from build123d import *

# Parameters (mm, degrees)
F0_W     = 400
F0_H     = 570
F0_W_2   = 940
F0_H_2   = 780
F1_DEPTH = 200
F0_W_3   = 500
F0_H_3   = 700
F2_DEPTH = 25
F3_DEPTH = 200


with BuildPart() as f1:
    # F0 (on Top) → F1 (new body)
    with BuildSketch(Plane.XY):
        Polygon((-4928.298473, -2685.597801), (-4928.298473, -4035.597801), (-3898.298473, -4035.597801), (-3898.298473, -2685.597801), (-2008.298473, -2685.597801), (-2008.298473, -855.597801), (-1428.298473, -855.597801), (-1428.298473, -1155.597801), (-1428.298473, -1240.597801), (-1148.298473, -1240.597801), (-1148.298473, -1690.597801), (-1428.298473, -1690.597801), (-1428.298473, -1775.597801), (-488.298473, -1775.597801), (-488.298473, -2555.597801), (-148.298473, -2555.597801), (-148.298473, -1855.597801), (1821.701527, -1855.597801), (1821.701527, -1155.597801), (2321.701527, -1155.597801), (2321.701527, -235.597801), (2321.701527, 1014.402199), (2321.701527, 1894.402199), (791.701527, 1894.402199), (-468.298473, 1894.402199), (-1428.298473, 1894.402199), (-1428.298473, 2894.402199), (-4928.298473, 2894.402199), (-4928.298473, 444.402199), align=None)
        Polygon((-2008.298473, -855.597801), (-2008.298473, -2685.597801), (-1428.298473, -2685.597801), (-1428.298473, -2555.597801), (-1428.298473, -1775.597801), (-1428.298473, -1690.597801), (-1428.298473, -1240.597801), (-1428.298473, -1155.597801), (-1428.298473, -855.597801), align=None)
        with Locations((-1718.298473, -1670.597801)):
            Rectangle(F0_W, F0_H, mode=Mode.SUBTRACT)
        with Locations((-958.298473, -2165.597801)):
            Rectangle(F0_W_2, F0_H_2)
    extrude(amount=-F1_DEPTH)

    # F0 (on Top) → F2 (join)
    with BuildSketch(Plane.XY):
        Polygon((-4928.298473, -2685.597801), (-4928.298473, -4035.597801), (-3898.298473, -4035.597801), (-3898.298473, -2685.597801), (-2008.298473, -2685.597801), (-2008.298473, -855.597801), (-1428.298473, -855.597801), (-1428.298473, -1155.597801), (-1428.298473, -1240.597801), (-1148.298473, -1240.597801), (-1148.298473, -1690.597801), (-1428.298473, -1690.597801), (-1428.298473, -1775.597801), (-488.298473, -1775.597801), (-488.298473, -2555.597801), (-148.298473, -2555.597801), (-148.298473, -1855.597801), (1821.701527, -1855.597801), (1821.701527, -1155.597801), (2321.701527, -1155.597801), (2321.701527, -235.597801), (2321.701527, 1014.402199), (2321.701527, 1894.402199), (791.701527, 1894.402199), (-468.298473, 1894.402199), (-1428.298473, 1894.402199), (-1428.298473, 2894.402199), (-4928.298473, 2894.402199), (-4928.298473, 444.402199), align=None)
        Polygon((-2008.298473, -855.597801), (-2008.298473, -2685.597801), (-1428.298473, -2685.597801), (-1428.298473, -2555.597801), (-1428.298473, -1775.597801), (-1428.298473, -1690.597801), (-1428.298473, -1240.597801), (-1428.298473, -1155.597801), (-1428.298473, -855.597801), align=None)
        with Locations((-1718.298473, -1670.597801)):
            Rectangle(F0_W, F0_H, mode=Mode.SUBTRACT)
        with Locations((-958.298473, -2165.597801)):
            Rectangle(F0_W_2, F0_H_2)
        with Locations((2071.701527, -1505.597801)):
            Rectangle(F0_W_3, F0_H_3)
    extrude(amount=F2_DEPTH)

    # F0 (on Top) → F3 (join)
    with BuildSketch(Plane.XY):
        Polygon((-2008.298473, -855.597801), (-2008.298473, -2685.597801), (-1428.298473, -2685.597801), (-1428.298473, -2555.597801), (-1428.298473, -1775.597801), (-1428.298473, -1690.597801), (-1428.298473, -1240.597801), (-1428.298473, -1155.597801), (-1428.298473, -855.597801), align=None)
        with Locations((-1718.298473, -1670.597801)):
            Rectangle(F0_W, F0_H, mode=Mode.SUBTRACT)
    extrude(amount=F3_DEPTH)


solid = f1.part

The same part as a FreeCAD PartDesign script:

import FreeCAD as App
import Part
import Sketcher
from FreeCAD import Vector
Q = App.Units.Quantity


def add_polygon(sketch, points):
    """Adds a closed chain of lines whose ends are joined by coincident constraints."""
    first, n = sketch.GeometryCount, len(points)
    for a, b in zip(points, points[1:] + points[:1]):
        sketch.addGeometry(Part.LineSegment(App.Vector(*a, 0), App.Vector(*b, 0)), False)
    for i in range(n):
        sketch.addConstraint(Sketcher.Constraint("Coincident", first + i, 2, first + (i + 1) % n, 1))

doc = App.newDocument("Part")
body = doc.addObject("PartDesign::Body", "Body")

# Sketch on XY plane
sketch1 = body.newObject("Sketcher::SketchObject", "Sketch")
sketch1.AttachmentSupport = (doc.getObject("XY_Plane"), [""])
sketch1.MapMode = "FlatFace"
add_polygon(sketch1, [(-4928, -4036), (-3898, -4036), (-3898, -2686), (-1428, -2686), (-1428, -2556), (-148, -2556), (-148, -1856), (1822, -1856), (1822, -1156), (2322, -1156), (2322, 1894), (-1428, 1894), (-1428, 2894), (-4928, 2894)])  # lines 0-13
add_polygon(sketch1, [(-1518, -1956), (-1918, -1956), (-1918, -1386), (-1518, -1386)])  # lines 14-17
add_polygon(sketch1, [(-1428, -1241), (-1148, -1241), (-1148, -1691), (-1428, -1691)])  # lines 18-21
sketch1.addConstraint(Sketcher.Constraint("Horizontal", 0))
sketch1.addConstraint(Sketcher.Constraint("Vertical", 1))
sketch1.addConstraint(Sketcher.Constraint("Horizontal", 2))
sketch1.addConstraint(Sketcher.Constraint("Vertical", 3))
sketch1.addConstraint(Sketcher.Constraint("Horizontal", 4))
sketch1.addConstraint(Sketcher.Constraint("Vertical", 5))
sketch1.addConstraint(Sketcher.Constraint("Horizontal", 6))
sketch1.addConstraint(Sketcher.Constraint("Vertical", 7))
sketch1.addConstraint(Sketcher.Constraint("Horizontal", 8))
sketch1.addConstraint(Sketcher.Constraint("Vertical", 9))
sketch1.addConstraint(Sketcher.Constraint("Horizontal", 10))
sketch1.addConstraint(Sketcher.Constraint("Vertical", 11))
sketch1.addConstraint(Sketcher.Constraint("Horizontal", 12))
sketch1.addConstraint(Sketcher.Constraint("Vertical", 13))
sketch1.addConstraint(Sketcher.Constraint("Horizontal", 14))
sketch1.addConstraint(Sketcher.Constraint("Vertical", 15))
sketch1.addConstraint(Sketcher.Constraint("Horizontal", 16))
sketch1.addConstraint(Sketcher.Constraint("Vertical", 17))
sketch1.addConstraint(Sketcher.Constraint("Horizontal", 18))
sketch1.addConstraint(Sketcher.Constraint("Vertical", 19))
sketch1.addConstraint(Sketcher.Constraint("Horizontal", 20))
sketch1.addConstraint(Sketcher.Constraint("Vertical", 21))
sketch1.addConstraint(Sketcher.Constraint("Vertical", 3, 2, 10, 2))
sketch1.addConstraint(Sketcher.Constraint("Vertical", 11, 2, 20, 2))
sketch1.addConstraint(Sketcher.Constraint("Equal", 5, 7))
sketch1.addConstraint(Sketcher.Constraint("DistanceX", 0, 1, 0, 2, Q("1030 mm")))
sketch1.addConstraint(Sketcher.Constraint("DistanceX", 2, 1, 2, 2, Q("2470 mm")))
sketch1.addConstraint(Sketcher.Constraint("DistanceX", 4, 1, 4, 2, Q("1280 mm")))
sketch1.addConstraint(Sketcher.Constraint("DistanceX", 6, 1, 6, 2, Q("1970 mm")))
sketch1.addConstraint(Sketcher.Constraint("DistanceX", 8, 1, 8, 2, Q("500 mm")))
sketch1.addConstraint(Sketcher.Constraint("DistanceX", 14, 2, 14, 1, Q("400 mm")))
sketch1.addConstraint(Sketcher.Constraint("DistanceX", 18, 1, 18, 2, Q("280 mm")))
sketch1.addConstraint(Sketcher.Constraint("DistanceY", 1, 1, 1, 2, Q("1350 mm")))
sketch1.addConstraint(Sketcher.Constraint("DistanceY", 3, 1, 3, 2, Q("130 mm")))
sketch1.addConstraint(Sketcher.Constraint("DistanceY", 5, 1, 5, 2, Q("700 mm")))
sketch1.addConstraint(Sketcher.Constraint("DistanceY", 9, 1, 9, 2, Q("3050 mm")))
sketch1.addConstraint(Sketcher.Constraint("DistanceY", 11, 1, 11, 2, Q("1000 mm")))
sketch1.addConstraint(Sketcher.Constraint("DistanceY", 15, 1, 15, 2, Q("570 mm")))
sketch1.addConstraint(Sketcher.Constraint("DistanceY", 19, 2, 19, 1, Q("450 mm")))
sketch1.addConstraint(Sketcher.Constraint("DistanceX", 14, 2, 3, 2, Q("490 mm")))
sketch1.addConstraint(Sketcher.Constraint("DistanceY", 3, 2, 14, 2, Q("600 mm")))
sketch1.addConstraint(Sketcher.Constraint("DistanceY", 16, 2, 18, 2, Q("145 mm")))
sketch1.addConstraint(Sketcher.Constraint("DistanceY", 0, 2, -1, 1, Q("4035.597801 mm")))
sketch1.addConstraint(Sketcher.Constraint("DistanceX", 0, 2, -1, 1, Q("3898.298473 mm")))
pad1 = body.newObject("PartDesign::Pad", "Pad")
pad1.Profile = sketch1
pad1.Length = 200
pad1.Reversed = True

# Sketch on XY plane
sketch2 = body.newObject("Sketcher::SketchObject", "Sketch001")
sketch2.AttachmentSupport = (doc.getObject("XY_Plane"), [""])
sketch2.MapMode = "FlatFace"
add_polygon(sketch2, [(-4928, -4036), (-3898, -4036), (-3898, -2686), (-1428, -2686), (-1428, -2556), (-148, -2556), (-148, -1856), (2322, -1856), (2322, 1894), (-1428, 1894), (-1428, 2894), (-4928, 2894)])  # lines 0-11
add_polygon(sketch2, [(-1518, -1956), (-1918, -1956), (-1918, -1386), (-1518, -1386)])  # lines 12-15
add_polygon(sketch2, [(-1428, -1241), (-1148, -1241), (-1148, -1691), (-1428, -1691)])  # lines 16-19
sketch2.addConstraint(Sketcher.Constraint("Horizontal", 0))
sketch2.addConstraint(Sketcher.Constraint("Vertical", 1))
sketch2.addConstraint(Sketcher.Constraint("Horizontal", 2))
sketch2.addConstraint(Sketcher.Constraint("Vertical", 3))
sketch2.addConstraint(Sketcher.Constraint("Horizontal", 4))
sketch2.addConstraint(Sketcher.Constraint("Vertical", 5))
sketch2.addConstraint(Sketcher.Constraint("Horizontal", 6))
sketch2.addConstraint(Sketcher.Constraint("Vertical", 7))
sketch2.addConstraint(Sketcher.Constraint("Horizontal", 8))
sketch2.addConstraint(Sketcher.Constraint("Vertical", 9))
sketch2.addConstraint(Sketcher.Constraint("Horizontal", 10))
sketch2.addConstraint(Sketcher.Constraint("Vertical", 11))
sketch2.addConstraint(Sketcher.Constraint("Horizontal", 12))
sketch2.addConstraint(Sketcher.Constraint("Vertical", 13))
sketch2.addConstraint(Sketcher.Constraint("Horizontal", 14))
sketch2.addConstraint(Sketcher.Constraint("Vertical", 15))
sketch2.addConstraint(Sketcher.Constraint("Horizontal", 16))
sketch2.addConstraint(Sketcher.Constraint("Vertical", 17))
sketch2.addConstraint(Sketcher.Constraint("Horizontal", 18))
sketch2.addConstraint(Sketcher.Constraint("Vertical", 19))
sketch2.addConstraint(Sketcher.Constraint("Vertical", 3, 2, 8, 2))
sketch2.addConstraint(Sketcher.Constraint("Vertical", 9, 2, 18, 2))
sketch2.addConstraint(Sketcher.Constraint("Equal", 2, 6))
sketch2.addConstraint(Sketcher.Constraint("Equal", 8, 7))
sketch2.addConstraint(Sketcher.Constraint("DistanceX", 0, 1, 0, 2, Q("1030 mm")))
sketch2.addConstraint(Sketcher.Constraint("DistanceX", 2, 1, 2, 2, Q("2470 mm")))
sketch2.addConstraint(Sketcher.Constraint("DistanceX", 4, 1, 4, 2, Q("1280 mm")))
sketch2.addConstraint(Sketcher.Constraint("DistanceX", 12, 2, 12, 1, Q("400 mm")))
sketch2.addConstraint(Sketcher.Constraint("DistanceX", 16, 1, 16, 2, Q("280 mm")))
sketch2.addConstraint(Sketcher.Constraint("DistanceY", 1, 1, 1, 2, Q("1350 mm")))
sketch2.addConstraint(Sketcher.Constraint("DistanceY", 3, 1, 3, 2, Q("130 mm")))
sketch2.addConstraint(Sketcher.Constraint("DistanceY", 5, 1, 5, 2, Q("700 mm")))
sketch2.addConstraint(Sketcher.Constraint("DistanceY", 9, 1, 9, 2, Q("1000 mm")))
sketch2.addConstraint(Sketcher.Constraint("DistanceY", 13, 1, 13, 2, Q("570 mm")))
sketch2.addConstraint(Sketcher.Constraint("DistanceY", 17, 2, 17, 1, Q("450 mm")))
sketch2.addConstraint(Sketcher.Constraint("DistanceX", 12, 2, 3, 2, Q("490 mm")))
sketch2.addConstraint(Sketcher.Constraint("DistanceY", 3, 2, 12, 2, Q("600 mm")))
sketch2.addConstraint(Sketcher.Constraint("DistanceY", 14, 2, 16, 2, Q("145 mm")))
sketch2.addConstraint(Sketcher.Constraint("DistanceY", 0, 2, -1, 1, Q("4035.597801 mm")))
sketch2.addConstraint(Sketcher.Constraint("DistanceX", 0, 2, -1, 1, Q("3898.298473 mm")))
pad2 = body.newObject("PartDesign::Pad", "Pad001")
pad2.Profile = sketch2
pad2.Length = 25

# Sketch on XY plane
sketch3 = body.newObject("Sketcher::SketchObject", "Sketch002")
sketch3.AttachmentSupport = (doc.getObject("XY_Plane"), [""])
sketch3.MapMode = "FlatFace"
add_polygon(sketch3, [(-2008, -856), (-2008, -2686), (-1428, -2686), (-1428, -856)])  # lines 0-3
add_polygon(sketch3, [(-1518, -1956), (-1918, -1956), (-1918, -1386), (-1518, -1386)])  # lines 4-7
sketch3.addConstraint(Sketcher.Constraint("Vertical", 0))
sketch3.addConstraint(Sketcher.Constraint("Horizontal", 1))
sketch3.addConstraint(Sketcher.Constraint("Vertical", 2))
sketch3.addConstraint(Sketcher.Constraint("Horizontal", 3))
sketch3.addConstraint(Sketcher.Constraint("Horizontal", 4))
sketch3.addConstraint(Sketcher.Constraint("Vertical", 5))
sketch3.addConstraint(Sketcher.Constraint("Horizontal", 6))
sketch3.addConstraint(Sketcher.Constraint("Vertical", 7))
sketch3.addConstraint(Sketcher.Constraint("DistanceX", 1, 1, 1, 2, Q("580 mm")))
sketch3.addConstraint(Sketcher.Constraint("DistanceX", 4, 2, 4, 1, Q("400 mm")))
sketch3.addConstraint(Sketcher.Constraint("DistanceY", 0, 2, 0, 1, Q("1830 mm")))
sketch3.addConstraint(Sketcher.Constraint("DistanceY", 5, 1, 5, 2, Q("570 mm")))
sketch3.addConstraint(Sketcher.Constraint("DistanceX", 0, 2, 4, 2, Q("90 mm")))
sketch3.addConstraint(Sketcher.Constraint("DistanceY", 0, 2, 4, 2, Q("730 mm")))
sketch3.addConstraint(Sketcher.Constraint("DistanceY", 0, 2, -1, 1, Q("2685.597801 mm")))
sketch3.addConstraint(Sketcher.Constraint("DistanceX", 0, 2, -1, 1, Q("2008.298473 mm")))
pad3 = body.newObject("PartDesign::Pad", "Pad002")
pad3.Profile = sketch3
pad3.Length = 200

doc.recompute()
